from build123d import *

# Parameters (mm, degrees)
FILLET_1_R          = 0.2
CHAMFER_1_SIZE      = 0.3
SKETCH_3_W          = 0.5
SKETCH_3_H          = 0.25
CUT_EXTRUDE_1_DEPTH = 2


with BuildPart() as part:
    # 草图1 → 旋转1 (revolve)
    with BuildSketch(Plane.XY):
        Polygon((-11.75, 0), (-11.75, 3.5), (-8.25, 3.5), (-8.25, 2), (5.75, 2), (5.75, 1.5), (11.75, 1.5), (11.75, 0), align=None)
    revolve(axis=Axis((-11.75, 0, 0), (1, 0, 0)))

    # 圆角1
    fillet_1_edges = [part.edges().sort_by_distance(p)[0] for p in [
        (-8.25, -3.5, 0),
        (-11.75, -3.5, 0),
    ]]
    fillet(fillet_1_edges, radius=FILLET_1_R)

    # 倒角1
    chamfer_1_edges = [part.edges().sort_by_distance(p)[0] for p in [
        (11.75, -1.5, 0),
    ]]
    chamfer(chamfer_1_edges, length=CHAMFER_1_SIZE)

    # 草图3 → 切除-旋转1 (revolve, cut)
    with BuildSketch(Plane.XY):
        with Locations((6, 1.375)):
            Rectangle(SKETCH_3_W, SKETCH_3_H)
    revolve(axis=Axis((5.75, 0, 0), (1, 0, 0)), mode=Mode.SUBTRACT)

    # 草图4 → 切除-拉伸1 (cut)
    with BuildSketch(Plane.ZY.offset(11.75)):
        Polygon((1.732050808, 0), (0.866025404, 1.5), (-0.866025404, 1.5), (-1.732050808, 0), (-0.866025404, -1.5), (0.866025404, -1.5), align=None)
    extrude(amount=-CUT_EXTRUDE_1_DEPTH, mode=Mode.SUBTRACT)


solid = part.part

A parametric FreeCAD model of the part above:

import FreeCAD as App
import Part
import Sketcher
from FreeCAD import Vector
Q = App.Units.Quantity


def edges_at(feature, points):
    """Names of the edges that pass closest to the given points."""
    edges = feature.Shape.Edges
    near = lambda p: min(range(len(edges)), key=lambda i: edges[i].distToShape(Part.Vertex(*p))[0])
    return sorted({f"Edge{near(p) + 1}" for p in points})

doc = App.newDocument("Part")
body = doc.addObject("PartDesign::Body", "Body")

# Sketch on XY plane
sketch1 = doc.addObject("Sketcher::SketchObject", "Sketch")
body.addObject(sketch1)
sketch1.AttachmentSupport = (doc.XY_Plane, [""])
sketch1.MapMode = "FlatFace"
sketch1.addGeometry(Part.LineSegment(Vector(-11.75, 3.5, 0), Vector(-11.75, 0, 0)), False)
sketch1.addGeometry(Part.LineSegment(Vector(-11.75, 0, 0), Vector(11.75, 0, 0)), False)
sketch1.addGeometry(Part.LineSegment(Vector(11.75, 0, 0), Vector(11.75, 1.5, 0)), False)
sketch1.addGeometry(Part.LineSegment(Vector(11.75, 1.5, 0), Vector(5.75, 1.5, 0)), False)
sketch1.addGeometry(Part.LineSegment(Vector(5.75, 1.5, 0), Vector(5.75, 2, 0)), False)
sketch1.addGeometry(Part.LineSegment(Vector(5.75, 2, 0), Vector(-8.25, 2, 0)), False)
sketch1.addGeometry(Part.LineSegment(Vector(-8.25, 2, 0), Vector(-8.25, 3.5, 0)), False)
sketch1.addGeometry(Part.LineSegment(Vector(-8.25, 3.5, 0), Vector(-11.75, 3.5, 0)), False)
sketch1.addConstraint(Sketcher.Constraint("Coincident", 0, 2, 1, 1))
sketch1.addConstraint(Sketcher.Constraint("Coincident", 1, 2, 2, 1))
sketch1.addConstraint(Sketcher.Constraint("Coincident", 2, 2, 3, 1))
sketch1.addConstraint(Sketcher.Constraint("Coincident", 3, 2, 4, 1))
sketch1.addConstraint(Sketcher.Constraint("Coincident", 4, 2, 5, 1))
sketch1.addConstraint(Sketcher.Constraint("Coincident", 5, 2, 6, 1))
sketch1.addConstraint(Sketcher.Constraint("Coincident", 6, 2, 7, 1))
sketch1.addConstraint(Sketcher.Constraint("Coincident", 7, 2, 0, 1))
sketch1.addConstraint(Sketcher.Constraint("Vertical", 0))
sketch1.addConstraint(Sketcher.Constraint("Horizontal", 1))
sketch1.addConstraint(Sketcher.Constraint("Vertical", 2))
sketch1.addConstraint(Sketcher.Constraint("Horizontal", 3))
sketch1.addConstraint(Sketcher.Constraint("Vertical", 4))
sketch1.addConstraint(Sketcher.Constraint("Horizontal", 5))
sketch1.addConstraint(Sketcher.Constraint("Vertical", 6))
sketch1.addConstraint(Sketcher.Constraint("Horizontal", 7))
sketch1.addConstraint(Sketcher.Constraint("Symmetric", 0, 2, 1, 2, -1, 1))
sketch1.addConstraint(Sketcher.Constraint("Equal", 7, 0))
sketch1.addConstraint(Sketcher.Constraint("Equal", 2, 6))
sketch1.addConstraint(Sketcher.Constraint("DistanceX", 3, 2, 3, 1, Q("6 mm")))
sketch1.addConstraint(Sketcher.Constraint("DistanceX", 5, 2, 5, 1, Q("14 mm")))
sketch1.addConstraint(Sketcher.Constraint("DistanceX", 1, 1, 1, 2, Q("23.5 mm")))
sketch1.addConstraint(Sketcher.Constraint("DistanceY", 2, 1, 2, 2, Q("1.5 mm")))
revolution = doc.addObject("PartDesign::Revolution", "Revolution")
body.addObject(revolution)
revolution.Profile = sketch1
revolution.ReferenceAxis = (sketch1, ["H_Axis"])
revolution.Angle = 360
doc.recompute()

fillet = doc.addObject("PartDesign::Fillet", "Fillet")
body.addObject(fillet)
fillet.Base = (revolution, edges_at(revolution, [(-8.25, -3.5, 0), (-11.75, -3.5, 0)]))
fillet.Radius = 0.2
doc.recompute()

chamfer = doc.addObject("PartDesign::Chamfer", "Chamfer")
body.addObject(chamfer)
chamfer.Base = (fillet, edges_at(fillet, [(11.75, -1.5, 0)]))
chamfer.Size = 0.3

# Sketch on XY plane
sketch2 = doc.addObject("Sketcher::SketchObject", "Sketch001")
body.addObject(sketch2)
sketch2.AttachmentSupport = (doc.XY_Plane, [""])
sketch2.MapMode = "FlatFace"
sketch2.addGeometry(Part.LineSegment(Vector(5.75, 1.5, 0), Vector(5.75, 1.25, 0)), False)
sketch2.addGeometry(Part.LineSegment(Vector(5.75, 1.25, 0), Vector(6.25, 1.25, 0)), False)
sketch2.addGeometry(Part.LineSegment(Vector(6.25, 1.25, 0), Vector(6.25, 1.5, 0)), False)
sketch2.addGeometry(Part.LineSegment(Vector(6.25, 1.5, 0), Vector(5.75, 1.5, 0)), False)
sketch2.addConstraint(Sketcher.Constraint("Coincident", 0, 2, 1, 1))
sketch2.addConstraint(Sketcher.Constraint("Coincident", 1, 2, 2, 1))
sketch2.addConstraint(Sketcher.Constraint("Coincident", 2, 2, 3, 1))
sketch2.addConstraint(Sketcher.Constraint("Coincident", 3, 2, 0, 1))
sketch2.addConstraint(Sketcher.Constraint("Vertical", 0))
sketch2.addConstraint(Sketcher.Constraint("Horizontal", 1))
sketch2.addConstraint(Sketcher.Constraint("Vertical", 2))
sketch2.addConstraint(Sketcher.Constraint("Horizontal", 3))
sketch2.addConstraint(Sketcher.Constraint("DistanceX", 1, 1, 1, 2, Q("0.5 mm")))
sketch2.addConstraint(Sketcher.Constraint("DistanceY", 0, 2, 0, 1, Q("0.25 mm")))
sketch2.addConstraint(Sketcher.Constraint("DistanceY", -1, 1, 2, 2, Q("1.5 mm")))
sketch2.addConstraint(Sketcher.Constraint("DistanceX", -1, 1, 0, 2, Q("5.75 mm")))
groove = doc.addObject("PartDesign::Groove", "Groove")
body.addObject(groove)
groove.Profile = sketch2
groove.ReferenceAxis = (sketch2, ["H_Axis"])
groove.Angle = 360

# Sketch on YZ plane
sketch3 = doc.addObject("Sketcher::SketchObject", "Sketch002")
body.addObject(sketch3)
sketch3.AttachmentSupport = (doc.YZ_Plane, [""])
sketch3.MapMode = "FlatFace"
sketch3.AttachmentOffset = App.Placement(Vector(0, 0, -11.75), App.Rotation())
sketch3.addGeometry(Part.LineSegment(Vector(0, 1.732051, 0), Vector(1.5, 0.866025, 0)), False)
sketch3.addGeometry(Part.LineSegment(Vector(1.5, 0.866025, 0), Vector(1.5, -0.866025, 0)), False)
sketch3.addGeometry(Part.LineSegment(Vector(1.5, -0.866025, 0), Vector(0, -1.732051, 0)), False)
sketch3.addGeometry(Part.LineSegment(Vector(0, -1.732051, 0), Vector(-1.5, -0.866025, 0)), False)
sketch3.addGeometry(Part.LineSegment(Vector(-1.5, -0.866025, 0), Vector(-1.5, 0.866025, 0)), False)
sketch3.addGeometry(Part.LineSegment(Vector(-1.5, 0.866025, 0), Vector(0, 1.732051, 0)), False)
sketch3.addConstraint(Sketcher.Constraint("Coincident", 0, 2, 1, 1))
sketch3.addConstraint(Sketcher.Constraint("Coincident", 1, 2, 2, 1))
sketch3.addConstraint(Sketcher.Constraint("Coincident", 2, 2, 3, 1))
sketch3.addConstraint(Sketcher.Constraint("Coincident", 3, 2, 4, 1))
sketch3.addConstraint(Sketcher.Constraint("Coincident", 4, 2, 5, 1))
sketch3.addConstraint(Sketcher.Constraint("Coincident", 5, 2, 0, 1))
sketch3.addConstraint(Sketcher.Constraint("Vertical", 1))
sketch3.addConstraint(Sketcher.Constraint("Vertical", 4))
sketch3.addConstraint(Sketcher.Constraint("Symmetric", 0, 2, 3, 2, -1, 1))
sketch3.addConstraint(Sketcher.Constraint("Symmetric", 2, 2, 5, 2, -1, 1))
sketch3.addConstraint(Sketcher.Constraint("PointOnObject", 2, 2, -2))
sketch3.addConstraint(Sketcher.Constraint("Parallel", 2, 5))
sketch3.addConstraint(Sketcher.Constraint("Horizontal", 1, 2, 3, 2))
sketch3.addConstraint(Sketcher.Constraint("Angle", 0, Q("-30 deg")))
sketch3.addConstraint(Sketcher.Constraint("DistanceX", 3, 2, 1, 2, Q("3 mm")))
sketch3.addConstraint(Sketcher.Constraint("DistanceY", 1, 2, 1, 1, Q("1.732051 mm")))
pocket1 = doc.addObject("PartDesign::Pocket", "Pocket")
body.addObject(pocket1)
pocket1.Profile = sketch3
pocket1.Length = 2
pocket1.Reversed = True

doc.recompute()
